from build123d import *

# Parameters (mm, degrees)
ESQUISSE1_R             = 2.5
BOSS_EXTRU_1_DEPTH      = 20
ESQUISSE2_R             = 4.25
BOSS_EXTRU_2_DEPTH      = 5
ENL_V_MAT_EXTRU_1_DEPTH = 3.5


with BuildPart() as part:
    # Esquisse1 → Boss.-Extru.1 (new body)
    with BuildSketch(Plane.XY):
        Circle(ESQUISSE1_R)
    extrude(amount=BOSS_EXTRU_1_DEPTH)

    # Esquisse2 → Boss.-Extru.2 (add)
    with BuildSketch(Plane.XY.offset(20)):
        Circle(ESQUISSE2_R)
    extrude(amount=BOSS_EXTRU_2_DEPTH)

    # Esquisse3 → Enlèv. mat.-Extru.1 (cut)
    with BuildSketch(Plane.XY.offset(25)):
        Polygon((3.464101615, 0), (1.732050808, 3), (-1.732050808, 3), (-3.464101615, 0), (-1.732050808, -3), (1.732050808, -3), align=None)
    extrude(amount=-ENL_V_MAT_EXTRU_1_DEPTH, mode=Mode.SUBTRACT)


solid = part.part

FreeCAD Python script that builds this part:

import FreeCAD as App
import Part
import Sketcher
Q = App.Units.Quantity

doc = App.newDocument("Part")
body = doc.addObject("PartDesign::Body", "Body")

sketch1 = body.newObject("Sketcher::SketchObject", "Sketch")
sketch1.AttachmentSupport = (doc.getObject("XY_Plane"), [""])
sketch1.MapMode = "FlatFace"
sketch1.addGeometry(Part.Circle(App.Vector(0, 0, 0), App.Vector(0, 0, 1), 2.5), False)
sketch1.addConstraint([
    Sketcher.Constraint("Coincident", 0, 3, -1, 1),
    Sketcher.Constraint("Diameter", 0, Q("5 mm")),
])
pad1 = body.newObject("PartDesign::Pad", "Pad")
pad1.Profile = sketch1
pad1.Length = 20

sketch2 = body.newObject("Sketcher::SketchObject", "Sketch001")
sketch2.AttachmentSupport = (doc.getObject("XY_Plane"), [""])
sketch2.MapMode = "FlatFace"
sketch2.AttachmentOffset = App.Placement(App.Vector(0, 0, 20), App.Rotation())
sketch2.addGeometry(Part.Circle(App.Vector(0, 0, 0), App.Vector(0, 0, 1), 4.2), False)
sketch2.addConstraint([
    Sketcher.Constraint("Coincident", 0, 3, -1, 1),
    Sketcher.Constraint("Diameter", 0, Q("8.5 mm")),
])
pad2 = body.newObject("PartDesign::Pad", "Pad001")
pad2.Profile = sketch2
pad2.Length = 5

sketch3 = body.newObject("Sketcher::SketchObject", "Sketch002")
sketch3.AttachmentSupport = (doc.getObject("XY_Plane"), [""])
sketch3.MapMode = "FlatFace"
sketch3.AttachmentOffset = App.Placement(App.Vector(0, 0, 25), App.Rotation())
sketch3.addGeometry([
    Part.LineSegment(App.Vector(3.5, 0, 0), App.Vector(1.7, 3, 0)),
    Part.LineSegment(App.Vector(1.7, 3, 0), App.Vector(-1.7, 3, 0)),
    Part.LineSegment(App.Vector(-1.7, 3, 0), App.Vector(-3.5, 0, 0)),
    Part.LineSegment(App.Vector(-3.5, 0, 0), App.Vector(-1.7, -3, 0)),
    Part.LineSegment(App.Vector(-1.7, -3, 0), App.Vector(1.7, -3, 0)),
    Part.LineSegment(App.Vector(1.7, -3, 0), App.Vector(3.5, 0, 0)),
], False)
sketch3.addConstraint([
    Sketcher.Constraint("Coincident", 0, 2, 1, 1),
    Sketcher.Constraint("Coincident", 1, 2, 2, 1),
    Sketcher.Constraint("Coincident", 2, 2, 3, 1),
    Sketcher.Constraint("Coincident", 3, 2, 4, 1),
    Sketcher.Constraint("Coincident", 4, 2, 5, 1),
    Sketcher.Constraint("Coincident", 5, 2, 0, 1),
    Sketcher.Constraint("Horizontal", 1),
    Sketcher.Constraint("Horizontal", 4),
    Sketcher.Constraint("Symmetric", 0, 2, 3, 2, -1, 1),
    Sketcher.Constraint("Symmetric", 2, 2, 5, 2, -1, 1),
    Sketcher.Constraint("PointOnObject", 2, 2, -1),
    Sketcher.Constraint("Parallel", 2, 5),
    Sketcher.Constraint("Vertical", 1, 2, 3, 2),
    Sketcher.Constraint("Angle", 0, Q("120 deg")),
    Sketcher.Constraint("DistanceY", -1, 1, 0, 2, Q("3 mm")),
    Sketcher.Constraint("DistanceX", 1, 2, 1, 1, Q("3.464102 mm")),
])
pocket1 = body.newObject("PartDesign::Pocket", "Pocket")
pocket1.Profile = sketch3
pocket1.Length = 3.5

doc.recompute()
